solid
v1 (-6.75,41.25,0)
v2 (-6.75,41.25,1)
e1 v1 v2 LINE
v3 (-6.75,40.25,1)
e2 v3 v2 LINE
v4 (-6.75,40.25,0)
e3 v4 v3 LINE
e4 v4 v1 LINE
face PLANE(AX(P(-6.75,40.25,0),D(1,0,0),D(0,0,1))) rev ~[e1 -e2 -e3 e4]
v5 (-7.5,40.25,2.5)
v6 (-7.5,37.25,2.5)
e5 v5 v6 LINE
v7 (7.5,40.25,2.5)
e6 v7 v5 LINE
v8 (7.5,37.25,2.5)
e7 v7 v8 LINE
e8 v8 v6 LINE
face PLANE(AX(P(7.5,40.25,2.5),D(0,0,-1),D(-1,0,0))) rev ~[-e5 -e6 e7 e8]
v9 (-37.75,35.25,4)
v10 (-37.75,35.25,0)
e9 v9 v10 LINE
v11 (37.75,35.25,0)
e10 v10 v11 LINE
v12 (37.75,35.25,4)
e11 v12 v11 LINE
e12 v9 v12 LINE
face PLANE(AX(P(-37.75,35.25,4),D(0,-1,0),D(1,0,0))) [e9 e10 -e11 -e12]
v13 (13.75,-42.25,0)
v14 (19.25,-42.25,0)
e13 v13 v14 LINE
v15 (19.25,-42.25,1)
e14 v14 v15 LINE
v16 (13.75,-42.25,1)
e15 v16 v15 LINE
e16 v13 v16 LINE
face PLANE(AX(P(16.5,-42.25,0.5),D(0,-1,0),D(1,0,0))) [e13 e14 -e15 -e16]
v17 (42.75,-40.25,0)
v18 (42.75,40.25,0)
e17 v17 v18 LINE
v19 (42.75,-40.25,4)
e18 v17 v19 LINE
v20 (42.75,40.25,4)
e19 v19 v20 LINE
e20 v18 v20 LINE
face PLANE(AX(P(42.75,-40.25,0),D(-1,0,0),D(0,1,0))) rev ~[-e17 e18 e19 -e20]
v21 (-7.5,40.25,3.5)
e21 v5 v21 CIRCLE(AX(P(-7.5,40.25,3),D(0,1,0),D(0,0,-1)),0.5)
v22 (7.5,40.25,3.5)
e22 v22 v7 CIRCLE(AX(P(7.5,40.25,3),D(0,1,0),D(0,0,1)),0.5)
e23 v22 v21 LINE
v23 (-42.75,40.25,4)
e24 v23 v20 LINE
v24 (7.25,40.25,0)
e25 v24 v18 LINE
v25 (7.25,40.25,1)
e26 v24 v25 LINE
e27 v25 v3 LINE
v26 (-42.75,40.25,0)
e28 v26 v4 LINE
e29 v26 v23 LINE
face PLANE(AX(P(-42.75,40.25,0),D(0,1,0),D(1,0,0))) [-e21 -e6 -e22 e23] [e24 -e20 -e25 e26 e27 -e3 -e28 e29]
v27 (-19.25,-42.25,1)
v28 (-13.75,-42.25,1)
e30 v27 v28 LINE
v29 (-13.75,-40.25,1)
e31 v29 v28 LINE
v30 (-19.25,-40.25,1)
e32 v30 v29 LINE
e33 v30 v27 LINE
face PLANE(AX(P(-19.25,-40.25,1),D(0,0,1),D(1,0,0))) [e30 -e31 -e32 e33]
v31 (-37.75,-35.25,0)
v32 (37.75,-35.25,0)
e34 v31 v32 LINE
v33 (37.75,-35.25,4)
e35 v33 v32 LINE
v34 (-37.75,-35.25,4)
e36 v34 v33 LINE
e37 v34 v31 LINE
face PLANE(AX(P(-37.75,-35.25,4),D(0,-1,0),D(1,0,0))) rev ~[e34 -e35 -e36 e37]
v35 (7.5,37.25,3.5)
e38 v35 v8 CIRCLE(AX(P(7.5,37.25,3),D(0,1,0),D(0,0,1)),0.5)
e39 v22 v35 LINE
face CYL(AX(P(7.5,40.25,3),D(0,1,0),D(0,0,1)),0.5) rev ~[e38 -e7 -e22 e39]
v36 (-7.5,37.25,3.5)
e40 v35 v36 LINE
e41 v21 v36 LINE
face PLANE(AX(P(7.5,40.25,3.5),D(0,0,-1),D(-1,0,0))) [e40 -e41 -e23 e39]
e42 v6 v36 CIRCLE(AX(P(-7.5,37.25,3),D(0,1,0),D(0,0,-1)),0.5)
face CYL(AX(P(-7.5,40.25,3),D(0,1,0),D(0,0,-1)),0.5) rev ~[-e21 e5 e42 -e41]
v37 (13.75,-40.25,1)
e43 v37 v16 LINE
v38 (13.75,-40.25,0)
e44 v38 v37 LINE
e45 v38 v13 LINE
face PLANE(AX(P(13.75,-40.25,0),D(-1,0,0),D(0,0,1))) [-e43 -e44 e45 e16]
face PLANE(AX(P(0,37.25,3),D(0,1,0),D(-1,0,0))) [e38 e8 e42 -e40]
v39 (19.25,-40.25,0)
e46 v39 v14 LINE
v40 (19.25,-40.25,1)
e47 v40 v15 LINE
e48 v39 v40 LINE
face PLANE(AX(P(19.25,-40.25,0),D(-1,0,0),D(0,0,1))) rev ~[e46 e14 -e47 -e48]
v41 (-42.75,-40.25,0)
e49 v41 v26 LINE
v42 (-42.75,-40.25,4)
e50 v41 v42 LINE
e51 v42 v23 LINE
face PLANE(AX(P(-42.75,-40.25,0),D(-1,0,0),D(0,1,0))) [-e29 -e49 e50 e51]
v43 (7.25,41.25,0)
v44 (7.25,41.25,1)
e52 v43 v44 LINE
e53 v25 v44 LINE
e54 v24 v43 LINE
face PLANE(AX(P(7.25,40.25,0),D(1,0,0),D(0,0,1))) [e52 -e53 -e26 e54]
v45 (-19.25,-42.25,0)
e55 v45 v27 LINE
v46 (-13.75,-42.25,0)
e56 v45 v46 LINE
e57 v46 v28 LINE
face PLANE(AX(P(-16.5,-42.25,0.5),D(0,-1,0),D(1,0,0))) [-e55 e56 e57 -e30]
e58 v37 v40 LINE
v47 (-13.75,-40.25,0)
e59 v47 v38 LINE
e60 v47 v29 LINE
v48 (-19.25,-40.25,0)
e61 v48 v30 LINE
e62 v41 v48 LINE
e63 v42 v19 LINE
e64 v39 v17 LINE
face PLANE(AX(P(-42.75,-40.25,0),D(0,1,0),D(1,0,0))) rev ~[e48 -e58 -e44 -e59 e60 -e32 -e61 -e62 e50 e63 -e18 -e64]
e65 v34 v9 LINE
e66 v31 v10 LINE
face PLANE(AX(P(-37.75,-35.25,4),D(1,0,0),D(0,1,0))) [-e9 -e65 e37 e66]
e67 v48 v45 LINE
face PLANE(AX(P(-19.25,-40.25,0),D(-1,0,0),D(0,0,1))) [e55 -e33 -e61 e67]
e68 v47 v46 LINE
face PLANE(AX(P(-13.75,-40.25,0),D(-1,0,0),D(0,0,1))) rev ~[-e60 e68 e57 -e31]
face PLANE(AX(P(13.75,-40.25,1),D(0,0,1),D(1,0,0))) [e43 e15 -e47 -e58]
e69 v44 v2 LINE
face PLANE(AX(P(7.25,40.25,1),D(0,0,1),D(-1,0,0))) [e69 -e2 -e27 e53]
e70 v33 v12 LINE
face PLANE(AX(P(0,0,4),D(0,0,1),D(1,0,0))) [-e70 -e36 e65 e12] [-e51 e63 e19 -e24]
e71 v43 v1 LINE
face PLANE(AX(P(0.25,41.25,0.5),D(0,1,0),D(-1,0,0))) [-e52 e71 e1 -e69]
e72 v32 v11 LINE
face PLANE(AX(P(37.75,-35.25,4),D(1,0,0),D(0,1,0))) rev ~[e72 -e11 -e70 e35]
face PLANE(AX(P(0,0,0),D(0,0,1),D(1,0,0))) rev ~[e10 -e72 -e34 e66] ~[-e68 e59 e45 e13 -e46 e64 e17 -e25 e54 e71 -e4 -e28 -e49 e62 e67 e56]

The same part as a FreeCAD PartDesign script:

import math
import FreeCAD as App
import Part
import Sketcher
Q = App.Units.Quantity


def add_polygon(sketch, points):
    """Adds a closed chain of lines whose ends are joined by coincident constraints."""
    first, n = sketch.GeometryCount, len(points)
    for a, b in zip(points, points[1:] + points[:1]):
        sketch.addGeometry(Part.LineSegment(App.Vector(*a, 0), App.Vector(*b, 0)), False)
    for i in range(n):
        sketch.addConstraint(Sketcher.Constraint("Coincident", first + i, 2, first + (i + 1) % n, 1))

doc = App.newDocument("Part")
body = doc.addObject("PartDesign::Body", "Body")

# Sketch on XY plane
sketch1 = doc.addObject("Sketcher::SketchObject", "Sketch")
body.addObject(sketch1)
sketch1.AttachmentSupport = (doc.XY_Plane, [""])
sketch1.MapMode = "FlatFace"
add_polygon(sketch1, [(-43, 40), (-43, -40), (43, -40), (43, 40)])  # lines 0-3
sketch1.addConstraint([
    Sketcher.Constraint("Vertical", 0),
    Sketcher.Constraint("Horizontal", 1),
    Sketcher.Constraint("Vertical", 2),
    Sketcher.Constraint("Horizontal", 3),
    Sketcher.Constraint("Symmetric", 0, 2, 2, 2, -1, 1),
    Sketcher.Constraint("DistanceX", 1, 1, 1, 2, Q("85.5 mm")),
    Sketcher.Constraint("DistanceY", 0, 2, 0, 1, Q("80.5 mm")),
])
pad1 = doc.addObject("PartDesign::Pad", "Pad")
body.addObject(pad1)
pad1.Profile = sketch1
pad1.Length = 4

# Sketch on XY plane
sketch2 = doc.addObject("Sketcher::SketchObject", "Sketch001")
body.addObject(sketch2)
sketch2.AttachmentSupport = (doc.XY_Plane, [""])
sketch2.MapMode = "FlatFace"
sketch2.AttachmentOffset = App.Placement(App.Vector(0, 0, 4), App.Rotation())
add_polygon(sketch2, [(-38, 35), (-38, -35), (38, -35), (38, 35)])  # lines 0-3
sketch2.addConstraint([
    Sketcher.Constraint("Vertical", 0),
    Sketcher.Constraint("Horizontal", 1),
    Sketcher.Constraint("Vertical", 2),
    Sketcher.Constraint("Horizontal", 3),
    Sketcher.Constraint("Symmetric", 0, 2, 2, 2, -1, 1),
    Sketcher.Constraint("DistanceX", 1, 1, 1, 2, Q("75.5 mm")),
    Sketcher.Constraint("DistanceY", 0, 2, 0, 1, Q("70.5 mm")),
])
pocket1 = doc.addObject("PartDesign::Pocket", "Pocket")
body.addObject(pocket1)
pocket1.Profile = sketch2
pocket1.Type = "ThroughAll"

# Sketch on XZ plane
sketch3 = doc.addObject("Sketcher::SketchObject", "Sketch002")
body.addObject(sketch3)
sketch3.AttachmentSupport = (doc.XZ_Plane, [""])
sketch3.MapMode = "FlatFace"
sketch3.AttachmentOffset = App.Placement(App.Vector(0, 0, 40.25), App.Rotation())
add_polygon(sketch3, [(-19.2, 1), (-19.2, 0), (-13.8, 0), (-13.8, 1)])  # lines 0-3
add_polygon(sketch3, [(13.8, 1), (13.8, 0), (19.2, 0), (19.2, 1)])  # lines 4-7
sketch3.addConstraint([
    Sketcher.Constraint("Vertical", 0),
    Sketcher.Constraint("Horizontal", 1),
    Sketcher.Constraint("Vertical", 2),
    Sketcher.Constraint("Horizontal", 3),
    Sketcher.Constraint("Vertical", 4),
    Sketcher.Constraint("Horizontal", 5),
    Sketcher.Constraint("Vertical", 6),
    Sketcher.Constraint("Horizontal", 7),
    Sketcher.Constraint("Symmetric", 1, 2, 4, 2, -1, 1),
    Sketcher.Constraint("Symmetric", 0, 2, 5, 2, -2),
    Sketcher.Constraint("Horizontal", 3, 2, 6, 2),
    Sketcher.Constraint("DistanceY", 0, 2, 0, 1, Q("1 mm")),
    Sketcher.Constraint("DistanceX", 1, 1, 1, 2, Q("5.5 mm")),
    Sketcher.Constraint("DistanceX", 0, 2, 4, 2, Q("33 mm")),
])
pad2 = doc.addObject("PartDesign::Pad", "Pad001")
body.addObject(pad2)
pad2.Profile = sketch3
pad2.Length = 2

# Sketch on XZ plane
sketch4 = doc.addObject("Sketcher::SketchObject", "Sketch003")
body.addObject(sketch4)
sketch4.AttachmentSupport = (doc.XZ_Plane, [""])
sketch4.MapMode = "FlatFace"
sketch4.AttachmentOffset = App.Placement(App.Vector(0, 0, -40.25), App.Rotation())
add_polygon(sketch4, [(7.2, 1), (7.2, 0), (-6.8, 0), (-6.8, 1)])  # lines 0-3
sketch4.addConstraint([
    Sketcher.Constraint("Vertical", 0),
    Sketcher.Constraint("Horizontal", 1),
    Sketcher.Constraint("Vertical", 2),
    Sketcher.Constraint("Horizontal", 3),
    Sketcher.Constraint("PointOnObject", 0, 2, -1),
    Sketcher.Constraint("DistanceX", 1, 2, 1, 1, Q("14 mm")),
    Sketcher.Constraint("DistanceY", 0, 2, 0, 1, Q("1 mm")),
    Sketcher.Constraint("DistanceX", -1, 1, 0, 2, Q("7.25 mm")),
])
pad3 = doc.addObject("PartDesign::Pad", "Pad002")
body.addObject(pad3)
pad3.Profile = sketch4
pad3.Length = 1
pad3.Reversed = True

# Sketch on XZ plane
sketch5 = doc.addObject("Sketcher::SketchObject", "Sketch004")
body.addObject(sketch5)
sketch5.AttachmentSupport = (doc.XZ_Plane, [""])
sketch5.MapMode = "FlatFace"
sketch5.AttachmentOffset = App.Placement(App.Vector(0, 0, -40.25), App.Rotation())
sketch5.addGeometry([
    Part.ArcOfCircle(Part.Circle(App.Vector(7.5, 3, 0), App.Vector(0, 0, 1), 0.5), math.radians(-90), math.radians(90)),
    Part.LineSegment(App.Vector(7.5, 2.5, 0), App.Vector(-7.5, 2.5, 0)),
    Part.ArcOfCircle(Part.Circle(App.Vector(-7.5, 3, 0), App.Vector(0, 0, 1), 0.5), math.radians(90), math.radians(270)),
    Part.LineSegment(App.Vector(-7.5, 3.5, 0), App.Vector(7.5, 3.5, 0)),
], False)
sketch5.addConstraint([
    Sketcher.Constraint("Tangent", 0, 1, 1, 1),
    Sketcher.Constraint("Tangent", 1, 2, 2, 2),
    Sketcher.Constraint("Tangent", 2, 1, 3, 1),
    Sketcher.Constraint("Tangent", 3, 2, 0, 2),
    Sketcher.Constraint("Horizontal", 1),
    Sketcher.Constraint("Horizontal", 3),
    Sketcher.Constraint("Radius", 0, Q("0.5 mm")),
    Sketcher.Constraint("DistanceX", 1, 2, 1, 1, Q("15 mm")),
    Sketcher.Constraint("DistanceY", -1, 1, 0, 3, Q("3 mm")),
    Sketcher.Constraint("DistanceX", -1, 1, 0, 3, Q("7.5 mm")),
])
pocket2 = doc.addObject("PartDesign::Pocket", "Pocket001")
body.addObject(pocket2)
pocket2.Profile = sketch5
pocket2.Length = 3
pocket2.Reversed = True

doc.recompute()
